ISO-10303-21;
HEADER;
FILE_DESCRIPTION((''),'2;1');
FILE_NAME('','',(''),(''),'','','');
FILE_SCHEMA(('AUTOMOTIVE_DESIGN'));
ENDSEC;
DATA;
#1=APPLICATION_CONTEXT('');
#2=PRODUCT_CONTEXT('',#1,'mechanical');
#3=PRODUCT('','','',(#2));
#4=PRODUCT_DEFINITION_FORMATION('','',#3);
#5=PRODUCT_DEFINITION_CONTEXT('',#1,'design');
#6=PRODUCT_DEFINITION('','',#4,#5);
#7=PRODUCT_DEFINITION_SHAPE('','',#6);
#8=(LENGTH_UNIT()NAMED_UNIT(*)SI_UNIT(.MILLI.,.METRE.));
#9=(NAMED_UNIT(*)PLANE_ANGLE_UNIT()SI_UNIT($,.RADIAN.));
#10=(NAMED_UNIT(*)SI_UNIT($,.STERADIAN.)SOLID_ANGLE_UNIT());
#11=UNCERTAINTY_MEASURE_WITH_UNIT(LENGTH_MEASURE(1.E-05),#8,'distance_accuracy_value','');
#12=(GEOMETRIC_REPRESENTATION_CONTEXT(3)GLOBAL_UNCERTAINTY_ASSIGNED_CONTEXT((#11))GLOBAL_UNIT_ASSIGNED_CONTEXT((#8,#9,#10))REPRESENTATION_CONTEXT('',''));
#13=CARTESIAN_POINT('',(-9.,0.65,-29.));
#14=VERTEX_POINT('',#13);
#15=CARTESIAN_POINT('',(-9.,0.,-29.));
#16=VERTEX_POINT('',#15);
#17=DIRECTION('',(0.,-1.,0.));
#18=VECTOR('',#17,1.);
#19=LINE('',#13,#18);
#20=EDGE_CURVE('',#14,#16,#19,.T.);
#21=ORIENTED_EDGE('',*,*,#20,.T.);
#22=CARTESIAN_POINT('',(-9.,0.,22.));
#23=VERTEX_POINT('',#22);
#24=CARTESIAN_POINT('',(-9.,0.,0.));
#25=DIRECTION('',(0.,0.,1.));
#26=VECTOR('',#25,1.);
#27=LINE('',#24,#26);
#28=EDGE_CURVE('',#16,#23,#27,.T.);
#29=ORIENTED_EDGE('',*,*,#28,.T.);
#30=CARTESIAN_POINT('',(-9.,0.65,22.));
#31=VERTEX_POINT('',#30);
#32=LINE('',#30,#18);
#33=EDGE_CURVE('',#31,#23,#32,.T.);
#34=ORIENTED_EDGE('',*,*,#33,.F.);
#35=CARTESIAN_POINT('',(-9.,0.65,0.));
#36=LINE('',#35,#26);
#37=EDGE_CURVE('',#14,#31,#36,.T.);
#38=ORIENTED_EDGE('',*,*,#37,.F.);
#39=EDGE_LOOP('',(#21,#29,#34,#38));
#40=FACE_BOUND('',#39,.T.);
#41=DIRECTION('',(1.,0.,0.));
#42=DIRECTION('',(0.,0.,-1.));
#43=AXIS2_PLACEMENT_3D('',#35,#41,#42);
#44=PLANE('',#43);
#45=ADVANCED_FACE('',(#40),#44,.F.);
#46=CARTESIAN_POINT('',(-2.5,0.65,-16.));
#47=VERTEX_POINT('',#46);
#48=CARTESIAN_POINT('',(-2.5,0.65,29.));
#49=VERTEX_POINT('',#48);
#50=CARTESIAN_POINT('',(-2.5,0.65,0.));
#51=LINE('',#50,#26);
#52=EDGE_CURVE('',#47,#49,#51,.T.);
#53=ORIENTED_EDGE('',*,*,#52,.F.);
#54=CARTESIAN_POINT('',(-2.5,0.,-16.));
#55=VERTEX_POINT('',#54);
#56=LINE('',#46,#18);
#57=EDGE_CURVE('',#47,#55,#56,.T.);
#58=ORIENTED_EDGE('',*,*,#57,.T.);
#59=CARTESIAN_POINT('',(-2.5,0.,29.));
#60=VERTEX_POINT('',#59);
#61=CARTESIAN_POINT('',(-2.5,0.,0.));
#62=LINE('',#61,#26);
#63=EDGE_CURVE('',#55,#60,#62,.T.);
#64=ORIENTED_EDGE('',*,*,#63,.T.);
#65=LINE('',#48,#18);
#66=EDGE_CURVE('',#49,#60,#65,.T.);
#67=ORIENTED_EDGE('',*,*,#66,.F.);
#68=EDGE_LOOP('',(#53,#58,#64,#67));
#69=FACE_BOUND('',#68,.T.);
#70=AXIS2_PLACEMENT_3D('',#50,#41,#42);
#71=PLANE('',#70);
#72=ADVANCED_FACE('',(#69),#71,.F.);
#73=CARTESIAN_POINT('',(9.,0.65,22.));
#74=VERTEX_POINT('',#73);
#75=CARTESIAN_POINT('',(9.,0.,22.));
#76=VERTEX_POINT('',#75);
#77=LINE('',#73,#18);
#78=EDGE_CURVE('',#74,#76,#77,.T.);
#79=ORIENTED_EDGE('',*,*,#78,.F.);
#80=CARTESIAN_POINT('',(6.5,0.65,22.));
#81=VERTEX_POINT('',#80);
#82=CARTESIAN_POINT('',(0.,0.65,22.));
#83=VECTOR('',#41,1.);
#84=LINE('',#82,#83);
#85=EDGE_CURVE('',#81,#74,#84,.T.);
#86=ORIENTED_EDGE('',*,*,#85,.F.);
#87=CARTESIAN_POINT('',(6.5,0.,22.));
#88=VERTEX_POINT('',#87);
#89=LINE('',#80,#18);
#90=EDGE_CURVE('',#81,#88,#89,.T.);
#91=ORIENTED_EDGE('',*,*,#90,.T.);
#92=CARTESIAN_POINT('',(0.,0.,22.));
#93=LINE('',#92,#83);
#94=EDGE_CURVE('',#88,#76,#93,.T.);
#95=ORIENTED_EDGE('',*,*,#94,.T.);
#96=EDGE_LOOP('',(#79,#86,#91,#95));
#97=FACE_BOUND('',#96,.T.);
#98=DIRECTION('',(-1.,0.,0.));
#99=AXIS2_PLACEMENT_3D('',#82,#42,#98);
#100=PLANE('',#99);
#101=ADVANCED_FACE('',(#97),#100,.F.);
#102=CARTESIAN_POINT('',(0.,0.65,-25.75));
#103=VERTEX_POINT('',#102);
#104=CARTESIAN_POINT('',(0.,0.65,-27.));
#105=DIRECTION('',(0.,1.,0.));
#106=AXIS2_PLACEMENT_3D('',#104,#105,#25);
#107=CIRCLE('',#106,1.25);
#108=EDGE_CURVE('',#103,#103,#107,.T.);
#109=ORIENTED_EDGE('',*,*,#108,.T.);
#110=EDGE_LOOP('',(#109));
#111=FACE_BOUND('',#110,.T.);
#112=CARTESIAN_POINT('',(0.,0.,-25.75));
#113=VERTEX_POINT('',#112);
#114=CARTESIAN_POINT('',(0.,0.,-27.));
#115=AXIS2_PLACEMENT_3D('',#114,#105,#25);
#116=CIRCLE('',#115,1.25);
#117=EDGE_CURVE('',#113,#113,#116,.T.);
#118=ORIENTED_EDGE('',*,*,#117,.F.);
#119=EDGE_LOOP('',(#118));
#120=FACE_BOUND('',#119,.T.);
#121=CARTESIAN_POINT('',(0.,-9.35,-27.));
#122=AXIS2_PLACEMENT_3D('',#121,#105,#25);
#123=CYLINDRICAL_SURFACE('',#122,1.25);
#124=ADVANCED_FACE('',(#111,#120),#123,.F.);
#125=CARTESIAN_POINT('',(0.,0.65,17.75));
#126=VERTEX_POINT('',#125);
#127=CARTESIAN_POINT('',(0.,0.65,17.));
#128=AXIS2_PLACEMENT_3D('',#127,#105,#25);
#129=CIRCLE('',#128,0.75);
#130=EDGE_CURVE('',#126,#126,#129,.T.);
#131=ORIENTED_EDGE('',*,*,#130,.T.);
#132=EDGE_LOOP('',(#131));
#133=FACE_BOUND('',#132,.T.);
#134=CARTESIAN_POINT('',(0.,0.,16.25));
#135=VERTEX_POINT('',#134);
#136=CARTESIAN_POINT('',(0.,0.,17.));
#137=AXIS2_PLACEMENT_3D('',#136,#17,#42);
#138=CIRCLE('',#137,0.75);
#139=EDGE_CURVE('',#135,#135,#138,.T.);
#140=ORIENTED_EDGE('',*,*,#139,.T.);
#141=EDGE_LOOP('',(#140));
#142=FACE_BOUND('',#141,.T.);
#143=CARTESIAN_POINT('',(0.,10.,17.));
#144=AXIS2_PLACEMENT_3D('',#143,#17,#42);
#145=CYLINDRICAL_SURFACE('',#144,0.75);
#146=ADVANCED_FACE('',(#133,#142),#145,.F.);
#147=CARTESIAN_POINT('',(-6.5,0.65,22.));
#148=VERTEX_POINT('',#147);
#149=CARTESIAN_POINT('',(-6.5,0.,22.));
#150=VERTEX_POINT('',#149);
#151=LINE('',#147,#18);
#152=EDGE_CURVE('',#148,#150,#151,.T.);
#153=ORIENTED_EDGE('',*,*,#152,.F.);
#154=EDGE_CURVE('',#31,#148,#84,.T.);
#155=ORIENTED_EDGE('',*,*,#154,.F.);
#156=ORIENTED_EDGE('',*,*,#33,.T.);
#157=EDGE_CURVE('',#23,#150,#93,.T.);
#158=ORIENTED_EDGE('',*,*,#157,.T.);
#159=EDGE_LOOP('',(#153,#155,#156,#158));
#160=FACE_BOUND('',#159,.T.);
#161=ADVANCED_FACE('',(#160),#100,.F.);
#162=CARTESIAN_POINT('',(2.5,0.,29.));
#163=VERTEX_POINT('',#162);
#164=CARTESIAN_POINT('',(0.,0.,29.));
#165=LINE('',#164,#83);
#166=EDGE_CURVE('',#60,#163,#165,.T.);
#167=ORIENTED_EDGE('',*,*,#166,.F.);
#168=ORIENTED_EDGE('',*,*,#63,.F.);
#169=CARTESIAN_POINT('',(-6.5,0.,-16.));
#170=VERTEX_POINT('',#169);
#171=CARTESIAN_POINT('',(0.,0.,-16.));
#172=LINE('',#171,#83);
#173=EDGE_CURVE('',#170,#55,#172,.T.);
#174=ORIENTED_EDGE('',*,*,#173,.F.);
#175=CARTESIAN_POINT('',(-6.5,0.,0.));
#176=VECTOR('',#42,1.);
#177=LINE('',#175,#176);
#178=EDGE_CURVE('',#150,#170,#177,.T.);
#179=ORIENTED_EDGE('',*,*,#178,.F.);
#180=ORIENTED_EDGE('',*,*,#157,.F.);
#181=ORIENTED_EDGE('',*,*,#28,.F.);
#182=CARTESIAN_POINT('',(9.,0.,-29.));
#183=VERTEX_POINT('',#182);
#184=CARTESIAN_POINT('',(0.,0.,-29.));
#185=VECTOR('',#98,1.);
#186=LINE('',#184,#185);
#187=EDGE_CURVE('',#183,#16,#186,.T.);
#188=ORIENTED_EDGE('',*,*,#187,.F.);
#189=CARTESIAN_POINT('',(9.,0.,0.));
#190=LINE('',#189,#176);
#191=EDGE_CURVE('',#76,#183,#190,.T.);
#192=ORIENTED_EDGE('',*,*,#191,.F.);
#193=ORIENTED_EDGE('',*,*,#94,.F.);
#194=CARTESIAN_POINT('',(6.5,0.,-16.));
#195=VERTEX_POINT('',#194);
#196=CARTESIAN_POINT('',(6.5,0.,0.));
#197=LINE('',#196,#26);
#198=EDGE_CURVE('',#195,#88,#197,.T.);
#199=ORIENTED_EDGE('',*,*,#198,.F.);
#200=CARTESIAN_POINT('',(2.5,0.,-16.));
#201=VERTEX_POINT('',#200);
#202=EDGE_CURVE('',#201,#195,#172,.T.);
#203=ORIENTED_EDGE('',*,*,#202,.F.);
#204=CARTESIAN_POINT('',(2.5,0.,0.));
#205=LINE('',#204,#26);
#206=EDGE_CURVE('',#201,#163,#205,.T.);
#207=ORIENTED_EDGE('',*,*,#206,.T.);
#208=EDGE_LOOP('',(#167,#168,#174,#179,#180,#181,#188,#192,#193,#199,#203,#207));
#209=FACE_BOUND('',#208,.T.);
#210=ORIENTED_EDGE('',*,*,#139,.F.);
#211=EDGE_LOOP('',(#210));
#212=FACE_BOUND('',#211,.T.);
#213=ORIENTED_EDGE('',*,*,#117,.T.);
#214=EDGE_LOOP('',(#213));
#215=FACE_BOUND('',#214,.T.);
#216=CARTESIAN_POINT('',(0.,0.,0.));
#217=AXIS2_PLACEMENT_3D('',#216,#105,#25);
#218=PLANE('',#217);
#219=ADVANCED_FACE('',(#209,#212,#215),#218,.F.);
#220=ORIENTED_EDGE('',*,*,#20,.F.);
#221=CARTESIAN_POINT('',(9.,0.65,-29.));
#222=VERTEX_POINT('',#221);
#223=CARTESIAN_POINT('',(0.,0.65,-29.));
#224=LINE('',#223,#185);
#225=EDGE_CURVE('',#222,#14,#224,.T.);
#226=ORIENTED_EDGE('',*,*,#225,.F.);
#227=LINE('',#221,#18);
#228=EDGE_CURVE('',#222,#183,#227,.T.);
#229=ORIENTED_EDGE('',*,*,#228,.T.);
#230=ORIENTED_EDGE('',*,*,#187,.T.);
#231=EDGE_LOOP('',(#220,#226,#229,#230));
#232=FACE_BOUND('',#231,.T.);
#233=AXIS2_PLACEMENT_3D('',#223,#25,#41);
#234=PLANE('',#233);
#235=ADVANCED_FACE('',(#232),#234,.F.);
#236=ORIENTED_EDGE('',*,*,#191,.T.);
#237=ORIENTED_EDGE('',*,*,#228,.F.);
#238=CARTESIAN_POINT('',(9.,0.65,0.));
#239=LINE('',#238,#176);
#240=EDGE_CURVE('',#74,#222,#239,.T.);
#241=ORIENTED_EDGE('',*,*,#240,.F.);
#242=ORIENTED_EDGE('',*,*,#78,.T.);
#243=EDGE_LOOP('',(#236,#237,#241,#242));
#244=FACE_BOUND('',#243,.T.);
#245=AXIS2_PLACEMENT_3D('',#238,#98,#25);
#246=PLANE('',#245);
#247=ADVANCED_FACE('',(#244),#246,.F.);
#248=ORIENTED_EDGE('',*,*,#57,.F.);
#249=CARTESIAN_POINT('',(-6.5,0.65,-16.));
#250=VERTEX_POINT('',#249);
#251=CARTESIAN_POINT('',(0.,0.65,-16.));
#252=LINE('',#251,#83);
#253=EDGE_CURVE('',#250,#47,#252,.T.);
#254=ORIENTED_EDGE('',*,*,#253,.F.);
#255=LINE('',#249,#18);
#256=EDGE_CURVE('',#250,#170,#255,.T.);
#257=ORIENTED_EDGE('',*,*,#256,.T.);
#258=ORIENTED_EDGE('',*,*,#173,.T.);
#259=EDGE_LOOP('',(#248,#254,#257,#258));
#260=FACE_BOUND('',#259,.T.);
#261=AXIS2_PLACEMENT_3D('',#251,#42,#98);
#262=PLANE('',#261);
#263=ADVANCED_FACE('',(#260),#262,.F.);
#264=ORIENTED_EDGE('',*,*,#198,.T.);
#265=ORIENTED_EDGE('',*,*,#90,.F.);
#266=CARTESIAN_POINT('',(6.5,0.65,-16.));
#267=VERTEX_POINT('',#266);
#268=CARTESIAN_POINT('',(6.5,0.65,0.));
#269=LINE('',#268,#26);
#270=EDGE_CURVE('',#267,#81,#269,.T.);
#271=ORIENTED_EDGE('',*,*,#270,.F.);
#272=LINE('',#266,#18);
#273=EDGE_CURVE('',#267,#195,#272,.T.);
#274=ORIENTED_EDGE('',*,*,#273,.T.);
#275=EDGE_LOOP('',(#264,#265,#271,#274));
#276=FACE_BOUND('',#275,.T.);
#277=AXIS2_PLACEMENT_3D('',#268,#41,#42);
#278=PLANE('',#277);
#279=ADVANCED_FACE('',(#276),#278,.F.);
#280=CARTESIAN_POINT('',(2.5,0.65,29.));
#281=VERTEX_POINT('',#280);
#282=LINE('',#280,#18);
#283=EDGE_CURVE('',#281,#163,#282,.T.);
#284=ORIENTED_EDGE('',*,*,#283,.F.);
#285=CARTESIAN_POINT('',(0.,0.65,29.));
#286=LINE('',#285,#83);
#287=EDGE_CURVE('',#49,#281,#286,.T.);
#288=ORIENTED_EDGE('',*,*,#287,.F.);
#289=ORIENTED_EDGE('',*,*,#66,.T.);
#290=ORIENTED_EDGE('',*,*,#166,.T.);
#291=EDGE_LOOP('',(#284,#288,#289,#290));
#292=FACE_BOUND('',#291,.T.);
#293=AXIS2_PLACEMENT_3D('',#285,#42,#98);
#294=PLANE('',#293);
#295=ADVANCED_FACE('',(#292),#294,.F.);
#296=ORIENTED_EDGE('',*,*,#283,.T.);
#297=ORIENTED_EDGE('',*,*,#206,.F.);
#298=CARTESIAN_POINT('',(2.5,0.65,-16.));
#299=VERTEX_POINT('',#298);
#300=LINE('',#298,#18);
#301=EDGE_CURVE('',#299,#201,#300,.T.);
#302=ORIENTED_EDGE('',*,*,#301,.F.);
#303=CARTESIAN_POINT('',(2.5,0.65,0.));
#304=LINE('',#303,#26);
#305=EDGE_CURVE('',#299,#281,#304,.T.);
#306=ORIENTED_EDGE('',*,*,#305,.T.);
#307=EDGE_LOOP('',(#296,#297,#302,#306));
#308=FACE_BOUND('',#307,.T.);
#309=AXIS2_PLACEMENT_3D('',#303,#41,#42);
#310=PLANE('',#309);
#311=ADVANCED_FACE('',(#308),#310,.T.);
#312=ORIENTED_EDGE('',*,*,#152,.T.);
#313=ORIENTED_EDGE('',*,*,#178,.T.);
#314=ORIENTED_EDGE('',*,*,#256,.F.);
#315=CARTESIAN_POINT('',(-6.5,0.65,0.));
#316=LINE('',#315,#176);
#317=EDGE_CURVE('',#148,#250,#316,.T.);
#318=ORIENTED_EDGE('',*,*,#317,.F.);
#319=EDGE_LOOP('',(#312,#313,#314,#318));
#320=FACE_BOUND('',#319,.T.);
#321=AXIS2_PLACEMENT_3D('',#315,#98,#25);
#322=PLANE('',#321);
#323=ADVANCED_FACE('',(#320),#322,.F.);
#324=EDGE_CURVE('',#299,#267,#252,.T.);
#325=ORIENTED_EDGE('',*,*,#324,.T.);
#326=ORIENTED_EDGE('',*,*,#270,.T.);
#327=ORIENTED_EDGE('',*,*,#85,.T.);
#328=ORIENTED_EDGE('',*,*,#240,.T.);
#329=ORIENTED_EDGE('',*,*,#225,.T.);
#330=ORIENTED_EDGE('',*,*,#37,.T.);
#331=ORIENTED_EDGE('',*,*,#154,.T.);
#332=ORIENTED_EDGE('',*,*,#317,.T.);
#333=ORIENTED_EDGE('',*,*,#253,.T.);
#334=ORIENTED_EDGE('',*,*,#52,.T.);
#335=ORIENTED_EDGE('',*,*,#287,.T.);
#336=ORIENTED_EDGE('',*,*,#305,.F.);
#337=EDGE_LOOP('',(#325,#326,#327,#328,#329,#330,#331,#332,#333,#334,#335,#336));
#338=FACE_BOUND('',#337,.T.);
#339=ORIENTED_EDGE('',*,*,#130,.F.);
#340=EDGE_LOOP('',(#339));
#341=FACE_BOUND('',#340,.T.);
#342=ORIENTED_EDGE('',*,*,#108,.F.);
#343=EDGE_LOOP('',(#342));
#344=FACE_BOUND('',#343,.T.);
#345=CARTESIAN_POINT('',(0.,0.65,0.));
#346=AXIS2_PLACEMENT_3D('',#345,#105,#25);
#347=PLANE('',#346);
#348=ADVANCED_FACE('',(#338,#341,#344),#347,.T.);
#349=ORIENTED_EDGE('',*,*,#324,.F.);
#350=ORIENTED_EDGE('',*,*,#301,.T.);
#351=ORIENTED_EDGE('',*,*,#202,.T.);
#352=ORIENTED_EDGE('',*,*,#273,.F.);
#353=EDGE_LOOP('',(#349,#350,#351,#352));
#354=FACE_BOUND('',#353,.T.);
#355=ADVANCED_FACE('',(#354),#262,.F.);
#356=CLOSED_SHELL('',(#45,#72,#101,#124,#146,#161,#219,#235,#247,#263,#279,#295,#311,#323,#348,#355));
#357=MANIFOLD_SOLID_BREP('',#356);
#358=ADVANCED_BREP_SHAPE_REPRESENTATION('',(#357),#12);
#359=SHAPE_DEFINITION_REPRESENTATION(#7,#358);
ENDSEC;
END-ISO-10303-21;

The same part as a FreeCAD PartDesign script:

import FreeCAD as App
import Part
import Sketcher

V = App.Vector

doc = App.newDocument("Part")
body = doc.addObject("PartDesign::Body", "Body")

# Sketch on XZ plane
sketch1 = body.newObject("Sketcher::SketchObject", "Sketch")
sketch1.AttachmentSupport = (doc.getObject("XZ_Plane"), [""])
sketch1.MapMode = "FlatFace"
sketch1.addGeometry([
    Part.LineSegment(V(-9, -29, 0), V(-9, 22, 0)),  # 0
    Part.LineSegment(V(-9, 22, 0), V(-6.5, 22, 0)),  # 1
    Part.LineSegment(V(-6.5, 22, 0), V(-6.5, -16, 0)),  # 2
    Part.LineSegment(V(-6.5, -16, 0), V(-2.5, -16, 0)),  # 3
    Part.LineSegment(V(-2.5, -16, 0), V(-2.5, 29, 0)),  # 4
    Part.LineSegment(V(-2.5, 29, 0), V(2.5, 29, 0)),  # 5
    Part.LineSegment(V(2.5, 29, 0), V(2.5, -16, 0)),  # 6
    Part.LineSegment(V(2.5, -16, 0), V(6.5, -16, 0)),  # 7
    Part.LineSegment(V(6.5, -16, 0), V(6.5, 22, 0)),  # 8
    Part.LineSegment(V(6.5, 22, 0), V(9, 22, 0)),  # 9
    Part.LineSegment(V(9, 22, 0), V(9, -29, 0)),  # 10
    Part.LineSegment(V(9, -29, 0), V(-9, -29, 0)),  # 11
], False)
sketch1.addConstraint([
    Sketcher.Constraint("Coincident", 0, 2, 1, 1),
    Sketcher.Constraint("Coincident", 1, 2, 2, 1),
    Sketcher.Constraint("Coincident", 2, 2, 3, 1),
    Sketcher.Constraint("Coincident", 3, 2, 4, 1),
    Sketcher.Constraint("Coincident", 4, 2, 5, 1),
    Sketcher.Constraint("Coincident", 5, 2, 6, 1),
    Sketcher.Constraint("Coincident", 6, 2, 7, 1),
    Sketcher.Constraint("Coincident", 7, 2, 8, 1),
    Sketcher.Constraint("Coincident", 8, 2, 9, 1),
    Sketcher.Constraint("Coincident", 9, 2, 10, 1),
    Sketcher.Constraint("Coincident", 10, 2, 11, 1),
    Sketcher.Constraint("Coincident", 11, 2, 0, 1),
    Sketcher.Constraint("Vertical", 0),
    Sketcher.Constraint("Horizontal", 1),
    Sketcher.Constraint("Vertical", 2),
    Sketcher.Constraint("Horizontal", 3),
    Sketcher.Constraint("Vertical", 4),
    Sketcher.Constraint("Horizontal", 5),
    Sketcher.Constraint("Vertical", 6),
    Sketcher.Constraint("Horizontal", 7),
    Sketcher.Constraint("Vertical", 8),
    Sketcher.Constraint("Horizontal", 9),
    Sketcher.Constraint("Vertical", 10),
    Sketcher.Constraint("Horizontal", 11),
    Sketcher.Constraint("Symmetric", 3, 2, 6, 2, -2),
    Sketcher.Constraint("Symmetric", 1, 2, 8, 2, -2),
    Sketcher.Constraint("Equal", 1, 9),
    Sketcher.Constraint("DistanceX", 3, 1, 3, 2, 4.0),
    Sketcher.Constraint("DistanceX", 5, 1, 5, 2, 5.0),
    Sketcher.Constraint("DistanceX", 11, 2, 11, 1, 18.0),
    Sketcher.Constraint("DistanceY", 0, 1, 0, 2, 51.0),
    Sketcher.Constraint("DistanceY", 2, 2, 2, 1, 38.0),
    Sketcher.Constraint("DistanceY", 4, 1, 4, 2, 45.0),
    Sketcher.Constraint("DistanceY", -1, 1, 0, 2, 22.0),
])
pad1 = body.newObject("PartDesign::Pad", "Pad")
pad1.Profile = sketch1
pad1.Length = 0.65
pad1.Reversed = True

# Sketch on XZ plane
sketch2 = body.newObject("Sketcher::SketchObject", "Sketch001")
sketch2.AttachmentSupport = (doc.getObject("XZ_Plane"), [""])
sketch2.MapMode = "FlatFace"
sketch2.AttachmentOffset = App.Placement(V(0, 0, -0.65), App.Rotation())
sketch2.addGeometry(Part.Circle(V(0, -27, 0), V(0, 0, 1), 1.2), False)
sketch2.addConstraint([
    Sketcher.Constraint("PointOnObject", 0, 3, -2),
    Sketcher.Constraint("Diameter", 0, 2.5),
    Sketcher.Constraint("DistanceY", 0, 3, -1, 1, 27.0),
])
pocket1 = body.newObject("PartDesign::Pocket", "Pocket")
pocket1.Profile = sketch2
pocket1.Length = 10
pocket1.Reversed = True

# Sketch on XZ plane
sketch3 = body.newObject("Sketcher::SketchObject", "Sketch002")
sketch3.AttachmentSupport = (doc.getObject("XZ_Plane"), [""])
sketch3.MapMode = "FlatFace"
sketch3.addGeometry(Part.Circle(V(0, 17, 0), V(0, 0, 1), 0.8), False)
sketch3.addConstraint([
    Sketcher.Constraint("PointOnObject", 0, 3, -2),
    Sketcher.Constraint("Diameter", 0, 1.5),
    Sketcher.Constraint("DistanceY", -1, 1, 0, 3, 17.0),
])
pocket2 = body.newObject("PartDesign::Pocket", "Pocket001")
pocket2.Profile = sketch3
pocket2.Length = 10

doc.recompute()
